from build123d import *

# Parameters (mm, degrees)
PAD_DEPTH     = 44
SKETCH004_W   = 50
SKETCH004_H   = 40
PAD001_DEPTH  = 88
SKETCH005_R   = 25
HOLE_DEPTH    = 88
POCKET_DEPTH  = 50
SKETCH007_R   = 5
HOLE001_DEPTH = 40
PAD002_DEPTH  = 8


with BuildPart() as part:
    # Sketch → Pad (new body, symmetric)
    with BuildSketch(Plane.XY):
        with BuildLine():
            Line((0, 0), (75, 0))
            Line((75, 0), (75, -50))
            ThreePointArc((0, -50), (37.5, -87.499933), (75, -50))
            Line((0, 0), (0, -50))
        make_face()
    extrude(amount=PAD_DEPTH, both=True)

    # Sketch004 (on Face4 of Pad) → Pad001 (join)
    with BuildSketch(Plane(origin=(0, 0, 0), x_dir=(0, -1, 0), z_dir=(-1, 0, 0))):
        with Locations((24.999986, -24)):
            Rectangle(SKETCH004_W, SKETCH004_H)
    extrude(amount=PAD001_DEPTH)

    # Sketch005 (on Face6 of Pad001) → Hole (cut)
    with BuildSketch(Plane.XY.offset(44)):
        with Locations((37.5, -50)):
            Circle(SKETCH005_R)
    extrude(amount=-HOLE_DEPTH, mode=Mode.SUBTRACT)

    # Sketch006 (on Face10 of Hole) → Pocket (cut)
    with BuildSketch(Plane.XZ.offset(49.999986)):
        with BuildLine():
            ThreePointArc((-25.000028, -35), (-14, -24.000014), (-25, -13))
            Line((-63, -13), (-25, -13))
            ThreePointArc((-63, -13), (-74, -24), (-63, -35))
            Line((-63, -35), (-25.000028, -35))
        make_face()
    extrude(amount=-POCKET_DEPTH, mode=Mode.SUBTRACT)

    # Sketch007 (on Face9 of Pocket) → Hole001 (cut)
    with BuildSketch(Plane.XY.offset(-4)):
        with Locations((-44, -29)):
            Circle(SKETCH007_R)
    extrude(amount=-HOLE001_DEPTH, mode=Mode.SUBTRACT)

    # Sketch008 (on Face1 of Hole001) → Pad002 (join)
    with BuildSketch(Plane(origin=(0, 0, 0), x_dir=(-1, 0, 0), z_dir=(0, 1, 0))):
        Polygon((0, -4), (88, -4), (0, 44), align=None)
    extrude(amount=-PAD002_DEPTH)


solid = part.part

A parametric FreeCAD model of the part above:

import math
import FreeCAD as App
import Part
import Sketcher

V = App.Vector


def add_polygon(sketch, points):
    """Adds a closed chain of lines whose ends are joined by coincident constraints."""
    first, n = sketch.GeometryCount, len(points)
    for a, b in zip(points, points[1:] + points[:1]):
        sketch.addGeometry(Part.LineSegment(App.Vector(*a, 0), App.Vector(*b, 0)), False)
    for i in range(n):
        sketch.addConstraint(Sketcher.Constraint("Coincident", first + i, 2, first + (i + 1) % n, 1))

doc = App.newDocument("Part")
body = doc.addObject("PartDesign::Body", "Body")

# Sketch on XY plane
sketch1 = body.newObject("Sketcher::SketchObject", "Sketch")
sketch1.AttachmentSupport = (doc.getObject("XY_Plane"), [""])
sketch1.MapMode = "FlatFace"
sketch1.addGeometry([
    Part.LineSegment(V(75, 0, 0), V(0, 0, 0)),
    Part.LineSegment(V(0, 0, 0), V(0, -50, 0)),
    Part.ArcOfCircle(Part.Circle(V(37.5, -49.999933, 0), V(0, 0, 1), 37.5), math.radians(-179.999898), math.radians(-0.000102)),
    Part.LineSegment(V(75, -50, 0), V(75, 0, 0)),
], False)
sketch1.addConstraint([
    Sketcher.Constraint("Coincident", 0, 2, 1, 1),
    Sketcher.Constraint("Coincident", 1, 2, 2, 1),
    Sketcher.Constraint("Coincident", 2, 2, 3, 1),
    Sketcher.Constraint("Coincident", 3, 2, 0, 1),
    Sketcher.Constraint("Horizontal", 0),
    Sketcher.Constraint("Vertical", 1),
    Sketcher.Constraint("Vertical", 3),
    Sketcher.Constraint("Coincident", 0, 2, -1, 1),
    Sketcher.Constraint("Radius", 2, 37.5),
    Sketcher.Constraint("DistanceY", 1, 2, 1, 1, 50.0),
    Sketcher.Constraint("DistanceY", 3, 1, 3, 2, 50.0),
    Sketcher.Constraint("DistanceY", 2, 3, -1, 1, 49.999933),
])
pad1 = body.newObject("PartDesign::Pad", "Pad")
pad1.Profile = sketch1
pad1.Length = 88
pad1.Midplane = True

# Sketch on YZ plane
sketch2 = body.newObject("Sketcher::SketchObject", "Sketch001")
sketch2.AttachmentSupport = (doc.getObject("YZ_Plane"), [""])
sketch2.MapMode = "FlatFace"
add_polygon(sketch2, [(0, -4), (0, -44), (-50, -44), (-50, -4)])  # lines 0-3
sketch2.addConstraint([
    Sketcher.Constraint("Vertical", 0),
    Sketcher.Constraint("Horizontal", 1),
    Sketcher.Constraint("Vertical", 2),
    Sketcher.Constraint("Horizontal", 3),
    Sketcher.Constraint("DistanceX", 1, 2, 1, 1, 50.0),
    Sketcher.Constraint("DistanceY", 0, 2, 0, 1, 40.0),
    Sketcher.Constraint("DistanceY", 0, 2, -1, 1, 44.0),
    Sketcher.Constraint("DistanceX", 1, 2, -1, 1, 49.999986),
])
pad2 = body.newObject("PartDesign::Pad", "Pad001")
pad2.Profile = sketch2
pad2.Length = 88
pad2.Reversed = True

# Sketch on XY plane
sketch3 = body.newObject("Sketcher::SketchObject", "Sketch002")
sketch3.AttachmentSupport = (doc.getObject("XY_Plane"), [""])
sketch3.MapMode = "FlatFace"
sketch3.AttachmentOffset = App.Placement(V(0, 0, 44), App.Rotation())
sketch3.addGeometry(Part.Circle(V(38, -50, 0), V(0, 0, 1), 25), False)
sketch3.addConstraint([
    Sketcher.Constraint("Diameter", 0, 50.0),
    Sketcher.Constraint("DistanceY", 0, 3, -1, 1, 50.0),
    Sketcher.Constraint("DistanceX", -1, 1, 0, 3, 37.5),
])
pocket1 = body.newObject("PartDesign::Pocket", "Pocket")
pocket1.Profile = sketch3
pocket1.Length = 88

# Sketch on XZ plane
sketch4 = body.newObject("Sketcher::SketchObject", "Sketch003")
sketch4.AttachmentSupport = (doc.getObject("XZ_Plane"), [""])
sketch4.MapMode = "FlatFace"
sketch4.AttachmentOffset = App.Placement(V(0, 0, 49.999986), App.Rotation())
sketch4.addGeometry([
    Part.ArcOfCircle(Part.Circle(V(-25, -24, 0), V(0, 0, 1), 11), math.radians(-90.000146), math.radians(90)),
    Part.LineSegment(V(-25, -13, 0), V(-63, -13, 0)),
    Part.ArcOfCircle(Part.Circle(V(-63, -24, 0), V(0, 0, 1), 11), math.radians(90), math.radians(270)),
    Part.LineSegment(V(-63, -35, 0), V(-25.000028, -35, 0)),
], False)
sketch4.addConstraint([
    Sketcher.Constraint("Tangent", 0, 2, 1, 1),
    Sketcher.Constraint("Tangent", 1, 2, 2, 1),
    Sketcher.Constraint("Tangent", 2, 2, 3, 1),
    Sketcher.Constraint("Coincident", 3, 2, 0, 1),
    Sketcher.Constraint("Horizontal", 1),
    Sketcher.Constraint("Horizontal", 3),
    Sketcher.Constraint("Radius", 0, 11.0),
    Sketcher.Constraint("DistanceX", 1, 2, 1, 1, 38.0),
    Sketcher.Constraint("DistanceX", 0, 3, -1, 1, 25.0),
    Sketcher.Constraint("DistanceY", 0, 3, -1, 1, 24.0),
    Sketcher.Constraint("DistanceX", 3, 1, 3, 2, 37.999972),
])
pocket2 = body.newObject("PartDesign::Pocket", "Pocket001")
pocket2.Profile = sketch4
pocket2.Length = 50

# Sketch on XY plane
sketch5 = body.newObject("Sketcher::SketchObject", "Sketch004")
sketch5.AttachmentSupport = (doc.getObject("XY_Plane"), [""])
sketch5.MapMode = "FlatFace"
sketch5.AttachmentOffset = App.Placement(V(0, 0, -4), App.Rotation())
sketch5.addGeometry(Part.Circle(V(-44, -29, 0), V(0, 0, 1), 5), False)
sketch5.addConstraint([
    Sketcher.Constraint("Diameter", 0, 10.0),
    Sketcher.Constraint("DistanceX", 0, 3, -1, 1, 44.0),
    Sketcher.Constraint("DistanceY", 0, 3, -1, 1, 29.0),
])
pocket3 = body.newObject("PartDesign::Pocket", "Pocket002")
pocket3.Profile = sketch5
pocket3.Length = 40

# Sketch on XZ plane
sketch6 = body.newObject("Sketcher::SketchObject", "Sketch005")
sketch6.AttachmentSupport = (doc.getObject("XZ_Plane"), [""])
sketch6.MapMode = "FlatFace"
add_polygon(sketch6, [(0, -4), (-88, -4), (0, 44)])  # lines 0-2
sketch6.addConstraint([
    Sketcher.Constraint("Horizontal", 0),
    Sketcher.Constraint("Vertical", 2),
    Sketcher.Constraint("PointOnObject", 1, 2, -2),
    Sketcher.Constraint("DistanceX", 0, 2, 0, 1, 88.0),
    Sketcher.Constraint("DistanceY", 2, 2, 2, 1, 48.0),
    Sketcher.Constraint("DistanceY", 0, 2, -1, 1, 4.0),
])
pad3 = body.newObject("PartDesign::Pad", "Pad002")
pad3.Profile = sketch6
pad3.Length = 8

doc.recompute()
